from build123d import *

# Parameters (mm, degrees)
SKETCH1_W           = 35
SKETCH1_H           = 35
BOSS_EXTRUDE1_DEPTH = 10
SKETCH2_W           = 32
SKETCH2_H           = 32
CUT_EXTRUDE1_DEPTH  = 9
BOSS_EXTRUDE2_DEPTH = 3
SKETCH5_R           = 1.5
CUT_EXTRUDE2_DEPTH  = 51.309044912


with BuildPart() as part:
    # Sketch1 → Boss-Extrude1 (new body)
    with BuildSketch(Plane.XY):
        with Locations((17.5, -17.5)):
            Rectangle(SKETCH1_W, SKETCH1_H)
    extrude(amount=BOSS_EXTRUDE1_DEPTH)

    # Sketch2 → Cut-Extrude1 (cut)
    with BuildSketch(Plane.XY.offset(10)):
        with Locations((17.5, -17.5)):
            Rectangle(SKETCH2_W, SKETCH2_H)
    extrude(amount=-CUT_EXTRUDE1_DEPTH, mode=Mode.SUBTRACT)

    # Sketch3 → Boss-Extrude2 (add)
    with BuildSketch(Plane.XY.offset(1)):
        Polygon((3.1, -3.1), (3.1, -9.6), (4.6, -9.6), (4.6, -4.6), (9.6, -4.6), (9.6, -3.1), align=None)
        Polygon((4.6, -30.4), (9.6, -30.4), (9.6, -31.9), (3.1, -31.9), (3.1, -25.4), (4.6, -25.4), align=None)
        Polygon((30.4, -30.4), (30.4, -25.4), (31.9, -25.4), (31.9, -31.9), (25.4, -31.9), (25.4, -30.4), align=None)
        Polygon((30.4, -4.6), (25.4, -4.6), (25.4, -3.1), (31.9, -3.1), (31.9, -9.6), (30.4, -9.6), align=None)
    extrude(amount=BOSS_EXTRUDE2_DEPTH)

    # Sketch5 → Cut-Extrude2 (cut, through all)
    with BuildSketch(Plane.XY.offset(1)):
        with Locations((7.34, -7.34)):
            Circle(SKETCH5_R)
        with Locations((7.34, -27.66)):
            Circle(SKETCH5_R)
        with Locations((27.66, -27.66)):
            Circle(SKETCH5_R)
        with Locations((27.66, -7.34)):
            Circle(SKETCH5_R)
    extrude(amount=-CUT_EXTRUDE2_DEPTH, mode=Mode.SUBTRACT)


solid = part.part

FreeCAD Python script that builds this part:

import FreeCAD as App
import Part
import Sketcher

V = App.Vector
Q = App.Units.Quantity

doc = App.newDocument("Part")
params = doc.addObject("Spreadsheet::Sheet", "Params")
for row, (alias, value) in enumerate([
    ("sketch1_width", "35 mm"),
    ("pad1_length", "10 mm"),
    ("sketch2_width", "32 mm"),
    ("pocket1_length", "9 mm"),
    ("sketch3_width", "5 mm"),
    ("sketch3_width2", "1.5 mm"),
    ("pad2_length", "3 mm"),
    ("sketch4_diameter", "3 mm"),
], start=1):
    params.set(f"A{row}", alias)
    params.set(f"B{row}", "=" + value)
    params.setAlias(f"B{row}", alias)

body = doc.addObject("PartDesign::Body", "Body")

# Sketch on XY plane
sketch1 = doc.addObject("Sketcher::SketchObject", "Sketch")
body.addObject(sketch1)
sketch1.AttachmentSupport = (doc.XY_Plane, [""])
sketch1.MapMode = "FlatFace"
sketch1.addGeometry([
    Part.LineSegment(V(0, 0, 0), V(0, -35, 0)),
    Part.LineSegment(V(0, -35, 0), V(35, -35, 0)),
    Part.LineSegment(V(35, -35, 0), V(35, 0, 0)),
    Part.LineSegment(V(35, 0, 0), V(0, 0, 0)),
], False)
sketch1.addConstraint([
    Sketcher.Constraint("Coincident", 0, 2, 1, 1),
    Sketcher.Constraint("Coincident", 1, 2, 2, 1),
    Sketcher.Constraint("Coincident", 2, 2, 3, 1),
    Sketcher.Constraint("Coincident", 3, 2, 0, 1),
    Sketcher.Constraint("Vertical", 0),
    Sketcher.Constraint("Horizontal", 1),
    Sketcher.Constraint("Vertical", 2),
    Sketcher.Constraint("Horizontal", 3),
    Sketcher.Constraint("Coincident", 3, 2, -1, 1),
    Sketcher.Constraint("Equal", 3, 0),
    Sketcher.Constraint("DistanceX", 1, 1, 1, 2, Q("35 mm")),
])
sketch1.setExpression("Constraints[10]", "Params.sketch1_width")
pad1 = doc.addObject("PartDesign::Pad", "Pad")
body.addObject(pad1)
pad1.Profile = sketch1
pad1.setExpression("Length", "Params.pad1_length")

# Sketch on XY plane
sketch2 = doc.addObject("Sketcher::SketchObject", "Sketch001")
body.addObject(sketch2)
sketch2.AttachmentSupport = (doc.XY_Plane, [""])
sketch2.MapMode = "FlatFace"
sketch2.AttachmentOffset = App.Placement(V(0, 0, 10), App.Rotation())
sketch2.addGeometry([
    Part.LineSegment(V(2, -2, 0), V(2, -34, 0)),
    Part.LineSegment(V(2, -34, 0), V(34, -34, 0)),
    Part.LineSegment(V(34, -34, 0), V(34, -2, 0)),
    Part.LineSegment(V(34, -2, 0), V(2, -2, 0)),
], False)
sketch2.addConstraint([
    Sketcher.Constraint("Coincident", 0, 2, 1, 1),
    Sketcher.Constraint("Coincident", 1, 2, 2, 1),
    Sketcher.Constraint("Coincident", 2, 2, 3, 1),
    Sketcher.Constraint("Coincident", 3, 2, 0, 1),
    Sketcher.Constraint("Vertical", 0),
    Sketcher.Constraint("Horizontal", 1),
    Sketcher.Constraint("Vertical", 2),
    Sketcher.Constraint("Horizontal", 3),
    Sketcher.Constraint("Equal", 3, 0),
    Sketcher.Constraint("DistanceX", 1, 1, 1, 2, Q("32 mm")),
    Sketcher.Constraint("DistanceX", -1, 1, 0, 2, Q("1.5 mm")),
    Sketcher.Constraint("DistanceY", 0, 2, -1, 1, Q("33.5 mm")),
])
sketch2.setExpression("Constraints[9]", "Params.sketch2_width")
pocket1 = doc.addObject("PartDesign::Pocket", "Pocket")
body.addObject(pocket1)
pocket1.Profile = sketch2
pocket1.setExpression("Length", "Params.pocket1_length")

# Sketch on XY plane
sketch3 = doc.addObject("Sketcher::SketchObject", "Sketch002")
body.addObject(sketch3)
sketch3.AttachmentSupport = (doc.XY_Plane, [""])
sketch3.MapMode = "FlatFace"
sketch3.AttachmentOffset = App.Placement(V(0, 0, 1), App.Rotation())
sketch3.addGeometry([
    Part.LineSegment(V(3.1, -3.1, 0), V(3.1, -9.6, 0)),  # 0
    Part.LineSegment(V(3.1, -9.6, 0), V(4.6, -9.6, 0)),  # 1
    Part.LineSegment(V(4.6, -9.6, 0), V(4.6, -4.6, 0)),  # 2
    Part.LineSegment(V(4.6, -4.6, 0), V(9.6, -4.6, 0)),  # 3
    Part.LineSegment(V(9.6, -4.6, 0), V(9.6, -3.1, 0)),  # 4
    Part.LineSegment(V(9.6, -3.1, 0), V(3.1, -3.1, 0)),  # 5
    Part.LineSegment(V(9.6, -30.4, 0), V(4.6, -30.4, 0)),  # 6
    Part.LineSegment(V(4.6, -30.4, 0), V(4.6, -25.4, 0)),  # 7
    Part.LineSegment(V(4.6, -25.4, 0), V(3.1, -25.4, 0)),  # 8
    Part.LineSegment(V(3.1, -25.4, 0), V(3.1, -31.9, 0)),  # 9
    Part.LineSegment(V(3.1, -31.9, 0), V(9.6, -31.9, 0)),  # 10
    Part.LineSegment(V(9.6, -31.9, 0), V(9.6, -30.4, 0)),  # 11
    Part.LineSegment(V(30.4, -25.4, 0), V(30.4, -30.4, 0)),  # 12
    Part.LineSegment(V(30.4, -30.4, 0), V(25.4, -30.4, 0)),  # 13
    Part.LineSegment(V(25.4, -30.4, 0), V(25.4, -31.9, 0)),  # 14
    Part.LineSegment(V(25.4, -31.9, 0), V(31.9, -31.9, 0)),  # 15
    Part.LineSegment(V(31.9, -31.9, 0), V(31.9, -25.4, 0)),  # 16
    Part.LineSegment(V(31.9, -25.4, 0), V(30.4, -25.4, 0)),  # 17
    Part.LineSegment(V(25.4, -4.6, 0), V(30.4, -4.6, 0)),  # 18
    Part.LineSegment(V(30.4, -4.6, 0), V(30.4, -9.6, 0)),  # 19
    Part.LineSegment(V(30.4, -9.6, 0), V(31.9, -9.6, 0)),  # 20
    Part.LineSegment(V(31.9, -9.6, 0), V(31.9, -3.1, 0)),  # 21
    Part.LineSegment(V(31.9, -3.1, 0), V(25.4, -3.1, 0)),  # 22
    Part.LineSegment(V(25.4, -3.1, 0), V(25.4, -4.6, 0)),  # 23
], False)
sketch3.addConstraint([
    Sketcher.Constraint("Coincident", 0, 2, 1, 1),
    Sketcher.Constraint("Coincident", 1, 2, 2, 1),
    Sketcher.Constraint("Coincident", 2, 2, 3, 1),
    Sketcher.Constraint("Coincident", 3, 2, 4, 1),
    Sketcher.Constraint("Coincident", 4, 2, 5, 1),
    Sketcher.Constraint("Coincident", 5, 2, 0, 1),
    Sketcher.Constraint("Coincident", 6, 2, 7, 1),
    Sketcher.Constraint("Coincident", 7, 2, 8, 1),
    Sketcher.Constraint("Coincident", 8, 2, 9, 1),
    Sketcher.Constraint("Coincident", 9, 2, 10, 1),
    Sketcher.Constraint("Coincident", 10, 2, 11, 1),
    Sketcher.Constraint("Coincident", 11, 2, 6, 1),
    Sketcher.Constraint("Coincident", 12, 2, 13, 1),
    Sketcher.Constraint("Coincident", 13, 2, 14, 1),
    Sketcher.Constraint("Coincident", 14, 2, 15, 1),
    Sketcher.Constraint("Coincident", 15, 2, 16, 1),
    Sketcher.Constraint("Coincident", 16, 2, 17, 1),
    Sketcher.Constraint("Coincident", 17, 2, 12, 1),
    Sketcher.Constraint("Coincident", 18, 2, 19, 1),
    Sketcher.Constraint("Coincident", 19, 2, 20, 1),
    Sketcher.Constraint("Coincident", 20, 2, 21, 1),
    Sketcher.Constraint("Coincident", 21, 2, 22, 1),
    Sketcher.Constraint("Coincident", 22, 2, 23, 1),
    Sketcher.Constraint("Coincident", 23, 2, 18, 1),
    Sketcher.Constraint("Vertical", 0),
    Sketcher.Constraint("Horizontal", 1),
    Sketcher.Constraint("Vertical", 2),
    Sketcher.Constraint("Horizontal", 3),
    Sketcher.Constraint("Vertical", 4),
    Sketcher.Constraint("Horizontal", 5),
    Sketcher.Constraint("Horizontal", 6),
    Sketcher.Constraint("Vertical", 7),
    Sketcher.Constraint("Horizontal", 8),
    Sketcher.Constraint("Vertical", 9),
    Sketcher.Constraint("Horizontal", 10),
    Sketcher.Constraint("Vertical", 11),
    Sketcher.Constraint("Vertical", 12),
    Sketcher.Constraint("Horizontal", 13),
    Sketcher.Constraint("Vertical", 14),
    Sketcher.Constraint("Horizontal", 15),
    Sketcher.Constraint("Vertical", 16),
    Sketcher.Constraint("Horizontal", 17),
    Sketcher.Constraint("Horizontal", 18),
    Sketcher.Constraint("Vertical", 19),
    Sketcher.Constraint("Horizontal", 20),
    Sketcher.Constraint("Vertical", 21),
    Sketcher.Constraint("Horizontal", 22),
    Sketcher.Constraint("Vertical", 23),
    Sketcher.Constraint("Horizontal", 11, 2, 12, 2),
    Sketcher.Constraint("Horizontal", 10, 2, 14, 2),
    Sketcher.Constraint("Horizontal", 8, 2, 16, 2),
    Sketcher.Constraint("Horizontal", 3, 2, 18, 2),
    Sketcher.Constraint("Horizontal", 1, 2, 19, 2),
    Sketcher.Constraint("Horizontal", 5, 2, 21, 2),
    Sketcher.Constraint("Vertical", 2, 2, 6, 2),
    Sketcher.Constraint("Vertical", 5, 2, 8, 2),
    Sketcher.Constraint("Vertical", 4, 2, 10, 2),
    Sketcher.Constraint("Vertical", 17, 2, 18, 2),
    Sketcher.Constraint("Vertical", 16, 2, 20, 2),
    Sketcher.Constraint("Vertical", 14, 2, 22, 2),
    Sketcher.Constraint("Equal", 6, 13),
    Sketcher.Constraint("Equal", 10, 15),
    Sketcher.Constraint("Equal", 22, 0),
    Sketcher.Constraint("Equal", 18, 2),
    Sketcher.Constraint("Equal", 2, 7),
    Sketcher.Constraint("Equal", 0, 9),
    Sketcher.Constraint("DistanceX", 3, 1, 3, 2, Q("5 mm")),
    Sketcher.Constraint("DistanceX", 1, 1, 1, 2, Q("1.5 mm")),
    Sketcher.Constraint("DistanceX", -1, 1, 0, 2, Q("3.1 mm")),
    Sketcher.Constraint("DistanceY", 0, 2, -1, 1, Q("9.6 mm")),
    Sketcher.Constraint("DistanceY", 6, 2, -1, 1, Q("30.4 mm")),
    Sketcher.Constraint("DistanceX", -1, 1, 12, 2, Q("30.4 mm")),
])
sketch3.setExpression("Constraints[66]", "Params.sketch3_width")
sketch3.setExpression("Constraints[67]", "Params.sketch3_width2")
pad2 = doc.addObject("PartDesign::Pad", "Pad001")
body.addObject(pad2)
pad2.Profile = sketch3
pad2.setExpression("Length", "Params.pad2_length")

# Sketch on XY plane
sketch4 = doc.addObject("Sketcher::SketchObject", "Sketch003")
body.addObject(sketch4)
sketch4.AttachmentSupport = (doc.XY_Plane, [""])
sketch4.MapMode = "FlatFace"
sketch4.AttachmentOffset = App.Placement(V(0, 0, 1), App.Rotation())
sketch4.addGeometry([
    Part.Circle(V(7.3, -7.3, 0), V(0, 0, 1), 1.5),
    Part.Circle(V(7.3, -27.7, 0), V(0, 0, 1), 1.5),
    Part.Circle(V(27.7, -27.7, 0), V(0, 0, 1), 1.5),
    Part.Circle(V(27.7, -7.3, 0), V(0, 0, 1), 1.5),
], False)
sketch4.addConstraint([
    Sketcher.Constraint("Equal", 0, 1),
    Sketcher.Constraint("Equal", 1, 2),
    Sketcher.Constraint("Equal", 2, 3),
    Sketcher.Constraint("Horizontal", 1, 3, 2, 3),
    Sketcher.Constraint("Horizontal", 0, 3, 3, 3),
    Sketcher.Constraint("Vertical", 0, 3, 1, 3),
    Sketcher.Constraint("Vertical", 2, 3, 3, 3),
    Sketcher.Constraint("Diameter", 0, Q("3 mm")),
    Sketcher.Constraint("DistanceX", -1, 1, 0, 3, Q("7.34 mm")),
    Sketcher.Constraint("DistanceY", 0, 3, -1, 1, Q("7.34 mm")),
    Sketcher.Constraint("DistanceY", 1, 3, -1, 1, Q("27.66 mm")),
    Sketcher.Constraint("DistanceX", -1, 1, 2, 3, Q("27.66 mm")),
])
sketch4.setExpression("Constraints[7]", "Params.sketch4_diameter")
pocket2 = doc.addObject("PartDesign::Pocket", "Pocket001")
body.addObject(pocket2)
pocket2.Profile = sketch4
pocket2.Type = "ThroughAll"

doc.recompute()
